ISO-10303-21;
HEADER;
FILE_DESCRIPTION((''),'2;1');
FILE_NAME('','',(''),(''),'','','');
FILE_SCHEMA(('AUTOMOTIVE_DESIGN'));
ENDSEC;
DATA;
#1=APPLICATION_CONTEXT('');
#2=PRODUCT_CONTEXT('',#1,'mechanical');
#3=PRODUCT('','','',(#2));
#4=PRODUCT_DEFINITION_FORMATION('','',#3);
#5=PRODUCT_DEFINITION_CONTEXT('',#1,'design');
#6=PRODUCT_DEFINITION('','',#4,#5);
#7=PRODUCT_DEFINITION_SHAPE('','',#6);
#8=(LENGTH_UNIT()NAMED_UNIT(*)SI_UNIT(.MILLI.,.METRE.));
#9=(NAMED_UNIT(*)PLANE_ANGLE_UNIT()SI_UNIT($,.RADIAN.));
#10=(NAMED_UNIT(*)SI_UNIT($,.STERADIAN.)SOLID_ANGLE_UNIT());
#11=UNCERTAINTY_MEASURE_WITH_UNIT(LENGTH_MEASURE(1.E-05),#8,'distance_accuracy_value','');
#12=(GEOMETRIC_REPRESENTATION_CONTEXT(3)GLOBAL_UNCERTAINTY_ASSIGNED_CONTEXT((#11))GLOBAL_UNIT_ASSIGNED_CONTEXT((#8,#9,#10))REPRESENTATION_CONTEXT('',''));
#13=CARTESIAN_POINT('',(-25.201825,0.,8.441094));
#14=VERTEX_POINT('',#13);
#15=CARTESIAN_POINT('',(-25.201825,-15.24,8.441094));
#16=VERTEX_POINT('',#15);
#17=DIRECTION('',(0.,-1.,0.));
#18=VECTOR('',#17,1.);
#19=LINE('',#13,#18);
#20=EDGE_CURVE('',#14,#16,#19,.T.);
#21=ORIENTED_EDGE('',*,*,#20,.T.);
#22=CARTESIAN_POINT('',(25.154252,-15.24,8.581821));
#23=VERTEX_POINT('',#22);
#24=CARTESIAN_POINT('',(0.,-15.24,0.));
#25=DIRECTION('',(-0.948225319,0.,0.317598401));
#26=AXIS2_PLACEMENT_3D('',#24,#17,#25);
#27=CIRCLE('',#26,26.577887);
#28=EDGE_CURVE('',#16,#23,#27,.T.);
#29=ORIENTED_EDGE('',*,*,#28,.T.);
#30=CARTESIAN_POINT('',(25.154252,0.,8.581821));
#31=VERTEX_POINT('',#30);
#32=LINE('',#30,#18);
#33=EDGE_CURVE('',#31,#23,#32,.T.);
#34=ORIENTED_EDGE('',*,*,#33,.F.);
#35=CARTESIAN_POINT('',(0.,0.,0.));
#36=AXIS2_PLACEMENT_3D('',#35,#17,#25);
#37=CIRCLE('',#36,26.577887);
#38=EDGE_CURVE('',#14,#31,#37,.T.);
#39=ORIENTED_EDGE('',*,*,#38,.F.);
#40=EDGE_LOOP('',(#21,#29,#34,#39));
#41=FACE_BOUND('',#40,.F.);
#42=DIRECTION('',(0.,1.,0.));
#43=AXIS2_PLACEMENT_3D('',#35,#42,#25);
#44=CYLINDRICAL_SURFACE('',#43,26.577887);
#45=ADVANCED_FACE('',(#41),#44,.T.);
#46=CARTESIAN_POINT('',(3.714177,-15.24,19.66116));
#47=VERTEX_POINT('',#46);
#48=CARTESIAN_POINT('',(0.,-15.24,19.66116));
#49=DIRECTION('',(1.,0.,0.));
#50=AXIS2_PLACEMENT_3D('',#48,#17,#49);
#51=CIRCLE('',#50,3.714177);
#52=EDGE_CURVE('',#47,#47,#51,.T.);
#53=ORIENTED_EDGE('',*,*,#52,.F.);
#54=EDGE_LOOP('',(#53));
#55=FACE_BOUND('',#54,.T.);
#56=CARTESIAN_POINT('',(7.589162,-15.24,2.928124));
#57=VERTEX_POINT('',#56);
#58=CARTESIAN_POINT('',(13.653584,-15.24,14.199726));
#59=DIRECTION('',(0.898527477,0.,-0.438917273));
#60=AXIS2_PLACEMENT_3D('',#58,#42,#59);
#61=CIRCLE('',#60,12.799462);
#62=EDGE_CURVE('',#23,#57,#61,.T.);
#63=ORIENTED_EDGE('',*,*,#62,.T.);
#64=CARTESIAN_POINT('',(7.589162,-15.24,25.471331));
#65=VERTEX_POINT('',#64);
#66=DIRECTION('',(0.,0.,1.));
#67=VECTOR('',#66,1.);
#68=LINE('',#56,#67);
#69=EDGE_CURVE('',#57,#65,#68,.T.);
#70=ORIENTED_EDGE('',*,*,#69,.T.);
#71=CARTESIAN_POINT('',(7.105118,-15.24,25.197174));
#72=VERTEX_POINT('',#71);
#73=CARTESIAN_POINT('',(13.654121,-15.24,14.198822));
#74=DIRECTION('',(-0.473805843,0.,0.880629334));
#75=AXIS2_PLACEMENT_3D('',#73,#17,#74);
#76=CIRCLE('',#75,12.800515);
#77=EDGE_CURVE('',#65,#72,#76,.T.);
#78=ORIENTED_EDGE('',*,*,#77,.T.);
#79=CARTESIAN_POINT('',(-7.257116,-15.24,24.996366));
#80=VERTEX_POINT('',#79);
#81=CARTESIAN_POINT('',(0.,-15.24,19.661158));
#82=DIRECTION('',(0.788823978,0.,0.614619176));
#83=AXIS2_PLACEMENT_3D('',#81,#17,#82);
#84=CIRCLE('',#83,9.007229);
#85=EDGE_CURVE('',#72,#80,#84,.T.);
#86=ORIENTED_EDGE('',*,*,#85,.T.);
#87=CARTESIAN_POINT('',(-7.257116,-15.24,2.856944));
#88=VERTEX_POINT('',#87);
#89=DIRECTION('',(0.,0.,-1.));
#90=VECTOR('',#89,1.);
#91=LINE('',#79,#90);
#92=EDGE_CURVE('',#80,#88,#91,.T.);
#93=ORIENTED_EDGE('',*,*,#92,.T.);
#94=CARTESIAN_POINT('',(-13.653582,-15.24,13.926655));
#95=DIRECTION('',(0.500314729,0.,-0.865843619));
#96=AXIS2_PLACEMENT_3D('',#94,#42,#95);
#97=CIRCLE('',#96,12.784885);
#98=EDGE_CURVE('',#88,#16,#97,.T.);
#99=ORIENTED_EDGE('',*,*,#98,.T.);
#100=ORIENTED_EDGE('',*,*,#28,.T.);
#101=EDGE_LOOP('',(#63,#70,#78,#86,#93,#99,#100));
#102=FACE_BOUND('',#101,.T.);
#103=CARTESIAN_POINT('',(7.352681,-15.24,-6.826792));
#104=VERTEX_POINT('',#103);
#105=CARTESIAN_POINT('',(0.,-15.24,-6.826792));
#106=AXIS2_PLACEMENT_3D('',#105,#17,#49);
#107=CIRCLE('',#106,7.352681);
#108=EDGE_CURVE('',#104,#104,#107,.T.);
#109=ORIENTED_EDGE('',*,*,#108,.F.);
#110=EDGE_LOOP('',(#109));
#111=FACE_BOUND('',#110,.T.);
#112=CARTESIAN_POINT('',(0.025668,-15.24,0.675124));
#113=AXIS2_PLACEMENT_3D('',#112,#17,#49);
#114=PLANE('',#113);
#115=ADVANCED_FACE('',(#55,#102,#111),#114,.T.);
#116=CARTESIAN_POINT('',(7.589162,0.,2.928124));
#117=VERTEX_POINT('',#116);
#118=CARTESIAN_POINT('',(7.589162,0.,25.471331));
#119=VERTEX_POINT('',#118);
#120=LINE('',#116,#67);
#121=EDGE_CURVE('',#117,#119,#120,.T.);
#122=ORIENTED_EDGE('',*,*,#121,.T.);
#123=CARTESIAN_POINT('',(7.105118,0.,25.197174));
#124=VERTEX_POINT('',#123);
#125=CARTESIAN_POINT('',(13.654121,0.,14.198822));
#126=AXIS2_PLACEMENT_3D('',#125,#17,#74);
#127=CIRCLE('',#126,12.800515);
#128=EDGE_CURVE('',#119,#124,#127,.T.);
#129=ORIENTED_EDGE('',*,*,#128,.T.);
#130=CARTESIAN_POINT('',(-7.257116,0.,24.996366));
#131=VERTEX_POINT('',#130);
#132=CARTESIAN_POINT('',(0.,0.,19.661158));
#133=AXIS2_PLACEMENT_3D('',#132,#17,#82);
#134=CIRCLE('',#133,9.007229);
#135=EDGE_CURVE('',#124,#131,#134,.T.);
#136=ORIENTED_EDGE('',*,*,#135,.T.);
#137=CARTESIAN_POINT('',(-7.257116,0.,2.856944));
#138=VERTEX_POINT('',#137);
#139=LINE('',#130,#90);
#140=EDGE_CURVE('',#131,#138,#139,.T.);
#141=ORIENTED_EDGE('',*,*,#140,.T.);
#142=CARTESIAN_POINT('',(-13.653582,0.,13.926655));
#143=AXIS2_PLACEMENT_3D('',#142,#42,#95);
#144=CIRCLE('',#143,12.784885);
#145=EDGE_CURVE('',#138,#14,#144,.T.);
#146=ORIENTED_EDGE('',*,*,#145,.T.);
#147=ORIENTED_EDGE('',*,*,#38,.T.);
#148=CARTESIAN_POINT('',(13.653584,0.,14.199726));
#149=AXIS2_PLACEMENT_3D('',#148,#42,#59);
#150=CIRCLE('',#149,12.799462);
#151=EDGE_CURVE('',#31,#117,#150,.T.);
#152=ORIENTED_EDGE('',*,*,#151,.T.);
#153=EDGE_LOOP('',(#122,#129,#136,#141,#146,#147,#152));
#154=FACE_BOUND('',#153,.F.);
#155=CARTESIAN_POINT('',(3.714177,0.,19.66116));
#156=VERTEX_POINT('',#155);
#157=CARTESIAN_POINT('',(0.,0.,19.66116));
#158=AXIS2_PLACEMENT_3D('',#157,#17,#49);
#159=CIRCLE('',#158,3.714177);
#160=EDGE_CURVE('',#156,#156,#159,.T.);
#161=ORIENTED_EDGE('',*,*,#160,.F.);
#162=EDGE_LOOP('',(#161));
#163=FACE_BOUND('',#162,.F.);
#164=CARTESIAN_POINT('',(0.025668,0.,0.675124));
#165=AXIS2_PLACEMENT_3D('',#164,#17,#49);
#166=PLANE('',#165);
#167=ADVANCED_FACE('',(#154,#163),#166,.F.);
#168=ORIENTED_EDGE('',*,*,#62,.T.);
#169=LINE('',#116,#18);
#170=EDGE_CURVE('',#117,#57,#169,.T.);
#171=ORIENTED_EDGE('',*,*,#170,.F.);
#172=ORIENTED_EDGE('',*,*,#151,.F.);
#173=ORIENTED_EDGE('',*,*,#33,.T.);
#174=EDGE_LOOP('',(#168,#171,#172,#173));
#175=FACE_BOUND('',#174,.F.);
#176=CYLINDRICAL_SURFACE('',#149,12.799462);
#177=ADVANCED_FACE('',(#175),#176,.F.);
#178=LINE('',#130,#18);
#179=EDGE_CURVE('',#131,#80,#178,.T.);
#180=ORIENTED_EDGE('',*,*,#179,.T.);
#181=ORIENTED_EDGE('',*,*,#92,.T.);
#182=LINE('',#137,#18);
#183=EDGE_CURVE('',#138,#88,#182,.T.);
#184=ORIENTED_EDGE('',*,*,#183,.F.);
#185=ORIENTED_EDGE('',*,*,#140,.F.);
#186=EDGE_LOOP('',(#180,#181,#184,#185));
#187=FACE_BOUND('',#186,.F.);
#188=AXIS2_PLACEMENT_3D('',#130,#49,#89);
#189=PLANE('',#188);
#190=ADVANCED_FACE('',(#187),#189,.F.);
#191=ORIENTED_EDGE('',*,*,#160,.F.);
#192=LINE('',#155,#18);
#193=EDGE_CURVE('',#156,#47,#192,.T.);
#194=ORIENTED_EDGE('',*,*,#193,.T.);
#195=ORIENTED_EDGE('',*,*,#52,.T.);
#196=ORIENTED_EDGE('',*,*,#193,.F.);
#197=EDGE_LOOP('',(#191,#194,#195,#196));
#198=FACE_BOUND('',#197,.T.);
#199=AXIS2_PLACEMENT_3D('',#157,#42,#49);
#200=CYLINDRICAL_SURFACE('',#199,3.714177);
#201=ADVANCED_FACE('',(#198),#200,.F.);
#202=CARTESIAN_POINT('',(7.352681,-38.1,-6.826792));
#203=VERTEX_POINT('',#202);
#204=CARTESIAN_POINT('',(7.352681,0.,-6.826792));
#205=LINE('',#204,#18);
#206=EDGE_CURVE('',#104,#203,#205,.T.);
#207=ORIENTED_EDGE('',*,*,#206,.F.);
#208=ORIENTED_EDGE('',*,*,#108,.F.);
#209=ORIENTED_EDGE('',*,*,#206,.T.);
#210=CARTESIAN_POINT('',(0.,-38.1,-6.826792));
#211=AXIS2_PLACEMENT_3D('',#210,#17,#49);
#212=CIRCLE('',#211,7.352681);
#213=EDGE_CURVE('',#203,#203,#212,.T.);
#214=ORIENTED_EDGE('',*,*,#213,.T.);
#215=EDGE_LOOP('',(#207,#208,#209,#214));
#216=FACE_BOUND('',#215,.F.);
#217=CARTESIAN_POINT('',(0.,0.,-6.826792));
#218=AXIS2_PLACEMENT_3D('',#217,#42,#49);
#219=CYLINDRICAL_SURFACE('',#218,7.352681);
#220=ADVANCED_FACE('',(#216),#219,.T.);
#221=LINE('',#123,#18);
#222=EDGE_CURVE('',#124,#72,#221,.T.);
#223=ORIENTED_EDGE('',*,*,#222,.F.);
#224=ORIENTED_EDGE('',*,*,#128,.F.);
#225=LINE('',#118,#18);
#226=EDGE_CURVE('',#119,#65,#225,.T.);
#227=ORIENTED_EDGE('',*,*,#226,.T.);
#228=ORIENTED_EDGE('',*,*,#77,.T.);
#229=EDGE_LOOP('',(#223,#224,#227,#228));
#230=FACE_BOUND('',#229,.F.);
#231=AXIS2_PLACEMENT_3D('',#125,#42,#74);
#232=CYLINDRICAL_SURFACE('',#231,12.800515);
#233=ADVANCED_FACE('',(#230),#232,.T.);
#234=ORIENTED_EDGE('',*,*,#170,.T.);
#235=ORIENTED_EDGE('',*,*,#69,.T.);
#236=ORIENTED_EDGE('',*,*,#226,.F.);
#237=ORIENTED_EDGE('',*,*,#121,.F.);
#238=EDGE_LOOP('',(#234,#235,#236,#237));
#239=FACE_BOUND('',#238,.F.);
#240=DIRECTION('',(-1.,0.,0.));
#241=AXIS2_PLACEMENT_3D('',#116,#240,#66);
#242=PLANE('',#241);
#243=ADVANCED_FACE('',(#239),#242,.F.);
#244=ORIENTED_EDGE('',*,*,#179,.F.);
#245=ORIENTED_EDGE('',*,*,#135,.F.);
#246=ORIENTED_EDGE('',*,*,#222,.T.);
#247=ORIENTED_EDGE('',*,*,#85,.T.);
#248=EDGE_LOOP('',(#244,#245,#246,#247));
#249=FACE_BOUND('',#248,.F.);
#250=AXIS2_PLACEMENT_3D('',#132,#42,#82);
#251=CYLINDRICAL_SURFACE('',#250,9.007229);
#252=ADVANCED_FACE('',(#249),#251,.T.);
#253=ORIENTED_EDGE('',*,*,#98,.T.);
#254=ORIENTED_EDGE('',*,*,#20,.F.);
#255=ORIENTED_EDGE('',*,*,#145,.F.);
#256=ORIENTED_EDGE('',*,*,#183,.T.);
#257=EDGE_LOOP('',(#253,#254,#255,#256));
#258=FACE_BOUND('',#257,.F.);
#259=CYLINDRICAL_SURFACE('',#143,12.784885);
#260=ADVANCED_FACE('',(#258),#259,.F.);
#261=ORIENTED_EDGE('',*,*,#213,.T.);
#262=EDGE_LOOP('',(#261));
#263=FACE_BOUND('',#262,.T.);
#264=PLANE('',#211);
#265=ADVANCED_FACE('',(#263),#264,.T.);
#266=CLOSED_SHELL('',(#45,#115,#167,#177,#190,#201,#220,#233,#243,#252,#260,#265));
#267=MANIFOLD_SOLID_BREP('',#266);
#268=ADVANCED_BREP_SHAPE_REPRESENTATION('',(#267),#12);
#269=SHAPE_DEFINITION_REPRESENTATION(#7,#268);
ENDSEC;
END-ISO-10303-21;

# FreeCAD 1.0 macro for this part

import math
import FreeCAD as App
import Part
import Sketcher
from FreeCAD import Vector
Q = App.Units.Quantity

doc = App.newDocument("Part")
body = doc.addObject("PartDesign::Body", "Body")

sketch1 = doc.addObject("Sketcher::SketchObject", "Sketch")
body.addObject(sketch1)
sketch1.AttachmentSupport = (doc.XZ_Plane, [""])
sketch1.MapMode = "FlatFace"
sketch1.addGeometry([
    Part.ArcOfCircle(Part.Circle(Vector(-13.653582, 13.926655, 0), Vector(0, 0, 1), 12.784885), math.radians(-154.591691), math.radians(-59.979176)),
    Part.ArcOfCircle(Part.Circle(Vector(0, 0, 0), Vector(0, 0, 1), 26.577887), math.radians(161.482252), math.radians(378.837989)),
    Part.ArcOfCircle(Part.Circle(Vector(13.653584, 14.199726, 0), Vector(0, 0, 1), 12.799462), math.radians(-118.281435), math.radians(-26.034819)),
    Part.LineSegment(Vector(7.589162, 2.928124, 0), Vector(7.589162, 25.471331, 0)),
    Part.ArcOfCircle(Part.Circle(Vector(13.654121, 14.198822, 0), Vector(0, 0, 1), 12.800515), math.radians(118.281627), math.radians(120.771815)),
    Part.ArcOfCircle(Part.Circle(Vector(0, 19.661158, 0), Vector(0, 0, 1), 9.007229), math.radians(37.924254), math.radians(143.677823)),
    Part.LineSegment(Vector(-7.257116, 24.996366, 0), Vector(-7.257116, 2.856944, 0)),
    Part.Circle(Vector(0, -6.826792, 0), Vector(0, 0, 1), 7.352681),
    Part.Circle(Vector(0, 19.66116, 0), Vector(0, 0, 1), 3.714177),
], False)
sketch1.addConstraint([
    Sketcher.Constraint("Coincident", 0, 1, 1, 1),
    Sketcher.Constraint("Coincident", 1, 2, 2, 2),
    Sketcher.Constraint("Coincident", 2, 1, 3, 1),
    Sketcher.Constraint("Coincident", 3, 2, 4, 1),
    Sketcher.Constraint("Coincident", 4, 2, 5, 1),
    Sketcher.Constraint("Coincident", 5, 2, 6, 1),
    Sketcher.Constraint("Coincident", 6, 2, 0, 2),
    Sketcher.Constraint("Vertical", 3),
    Sketcher.Constraint("Vertical", 6),
    Sketcher.Constraint("Coincident", 1, 3, -1, 1),
    Sketcher.Constraint("Coincident", 8, 3, 5, 3),
    Sketcher.Constraint("PointOnObject", 5, 3, -2),
    Sketcher.Constraint("PointOnObject", 7, 3, -2),
    Sketcher.Constraint("Diameter", 7, Q("14.705362 mm")),
    Sketcher.Constraint("Radius", 2, Q("12.799462 mm")),
    Sketcher.Constraint("Radius", 5, Q("9.007229 mm")),
    Sketcher.Constraint("Diameter", 8, Q("7.428354 mm")),
    Sketcher.Constraint("Radius", 0, Q("12.784885 mm")),
    Sketcher.Constraint("Radius", 1, Q("26.577887 mm")),
    Sketcher.Constraint("Radius", 4, Q("12.800515 mm")),
    Sketcher.Constraint("DistanceY", 6, 2, 6, 1, Q("22.139422 mm")),
    Sketcher.Constraint("DistanceY", 1, 2, 4, 3, Q("5.617001 mm")),
    Sketcher.Constraint("DistanceY", 2, 1, 4, 3, Q("11.270698 mm")),
    Sketcher.Constraint("DistanceY", 2, 1, 2, 3, Q("11.271602 mm")),
    Sketcher.Constraint("DistanceY", 3, 1, 3, 2, Q("22.543207 mm")),
    Sketcher.Constraint("DistanceX", -1, 1, 4, 3, Q("13.654121 mm")),
    Sketcher.Constraint("DistanceY", -1, 1, 5, 3, Q("19.661158 mm")),
    Sketcher.Constraint("DistanceY", 0, 3, 2, 3, Q("0.273071 mm")),
    Sketcher.Constraint("DistanceY", 7, 3, 1, 3, Q("6.826792 mm")),
    Sketcher.Constraint("DistanceY", 0, 1, 0, 3, Q("5.485561 mm")),
])
pad1 = doc.addObject("PartDesign::Pad", "Pad")
body.addObject(pad1)
pad1.Profile = sketch1
pad1.Length = Q("0.6 in")

sketch2 = doc.addObject("Sketcher::SketchObject", "Sketch001")
body.addObject(sketch2)
sketch2.AttachmentSupport = (doc.XZ_Plane, [""])
sketch2.MapMode = "FlatFace"
sketch2.addGeometry(Part.Circle(Vector(0, -6.826792, 0), Vector(0, 0, 1), 7.352681), False)
sketch2.addConstraint([
    Sketcher.Constraint("PointOnObject", 0, 3, -2),
    Sketcher.Constraint("Diameter", 0, Q("14.705362 mm")),
    Sketcher.Constraint("DistanceY", 0, 3, -1, 1, Q("6.826792 mm")),
])
pad2 = doc.addObject("PartDesign::Pad", "Pad001")
body.addObject(pad2)
pad2.Profile = sketch2
pad2.Length = Q("1.5 in")

doc.recompute()
